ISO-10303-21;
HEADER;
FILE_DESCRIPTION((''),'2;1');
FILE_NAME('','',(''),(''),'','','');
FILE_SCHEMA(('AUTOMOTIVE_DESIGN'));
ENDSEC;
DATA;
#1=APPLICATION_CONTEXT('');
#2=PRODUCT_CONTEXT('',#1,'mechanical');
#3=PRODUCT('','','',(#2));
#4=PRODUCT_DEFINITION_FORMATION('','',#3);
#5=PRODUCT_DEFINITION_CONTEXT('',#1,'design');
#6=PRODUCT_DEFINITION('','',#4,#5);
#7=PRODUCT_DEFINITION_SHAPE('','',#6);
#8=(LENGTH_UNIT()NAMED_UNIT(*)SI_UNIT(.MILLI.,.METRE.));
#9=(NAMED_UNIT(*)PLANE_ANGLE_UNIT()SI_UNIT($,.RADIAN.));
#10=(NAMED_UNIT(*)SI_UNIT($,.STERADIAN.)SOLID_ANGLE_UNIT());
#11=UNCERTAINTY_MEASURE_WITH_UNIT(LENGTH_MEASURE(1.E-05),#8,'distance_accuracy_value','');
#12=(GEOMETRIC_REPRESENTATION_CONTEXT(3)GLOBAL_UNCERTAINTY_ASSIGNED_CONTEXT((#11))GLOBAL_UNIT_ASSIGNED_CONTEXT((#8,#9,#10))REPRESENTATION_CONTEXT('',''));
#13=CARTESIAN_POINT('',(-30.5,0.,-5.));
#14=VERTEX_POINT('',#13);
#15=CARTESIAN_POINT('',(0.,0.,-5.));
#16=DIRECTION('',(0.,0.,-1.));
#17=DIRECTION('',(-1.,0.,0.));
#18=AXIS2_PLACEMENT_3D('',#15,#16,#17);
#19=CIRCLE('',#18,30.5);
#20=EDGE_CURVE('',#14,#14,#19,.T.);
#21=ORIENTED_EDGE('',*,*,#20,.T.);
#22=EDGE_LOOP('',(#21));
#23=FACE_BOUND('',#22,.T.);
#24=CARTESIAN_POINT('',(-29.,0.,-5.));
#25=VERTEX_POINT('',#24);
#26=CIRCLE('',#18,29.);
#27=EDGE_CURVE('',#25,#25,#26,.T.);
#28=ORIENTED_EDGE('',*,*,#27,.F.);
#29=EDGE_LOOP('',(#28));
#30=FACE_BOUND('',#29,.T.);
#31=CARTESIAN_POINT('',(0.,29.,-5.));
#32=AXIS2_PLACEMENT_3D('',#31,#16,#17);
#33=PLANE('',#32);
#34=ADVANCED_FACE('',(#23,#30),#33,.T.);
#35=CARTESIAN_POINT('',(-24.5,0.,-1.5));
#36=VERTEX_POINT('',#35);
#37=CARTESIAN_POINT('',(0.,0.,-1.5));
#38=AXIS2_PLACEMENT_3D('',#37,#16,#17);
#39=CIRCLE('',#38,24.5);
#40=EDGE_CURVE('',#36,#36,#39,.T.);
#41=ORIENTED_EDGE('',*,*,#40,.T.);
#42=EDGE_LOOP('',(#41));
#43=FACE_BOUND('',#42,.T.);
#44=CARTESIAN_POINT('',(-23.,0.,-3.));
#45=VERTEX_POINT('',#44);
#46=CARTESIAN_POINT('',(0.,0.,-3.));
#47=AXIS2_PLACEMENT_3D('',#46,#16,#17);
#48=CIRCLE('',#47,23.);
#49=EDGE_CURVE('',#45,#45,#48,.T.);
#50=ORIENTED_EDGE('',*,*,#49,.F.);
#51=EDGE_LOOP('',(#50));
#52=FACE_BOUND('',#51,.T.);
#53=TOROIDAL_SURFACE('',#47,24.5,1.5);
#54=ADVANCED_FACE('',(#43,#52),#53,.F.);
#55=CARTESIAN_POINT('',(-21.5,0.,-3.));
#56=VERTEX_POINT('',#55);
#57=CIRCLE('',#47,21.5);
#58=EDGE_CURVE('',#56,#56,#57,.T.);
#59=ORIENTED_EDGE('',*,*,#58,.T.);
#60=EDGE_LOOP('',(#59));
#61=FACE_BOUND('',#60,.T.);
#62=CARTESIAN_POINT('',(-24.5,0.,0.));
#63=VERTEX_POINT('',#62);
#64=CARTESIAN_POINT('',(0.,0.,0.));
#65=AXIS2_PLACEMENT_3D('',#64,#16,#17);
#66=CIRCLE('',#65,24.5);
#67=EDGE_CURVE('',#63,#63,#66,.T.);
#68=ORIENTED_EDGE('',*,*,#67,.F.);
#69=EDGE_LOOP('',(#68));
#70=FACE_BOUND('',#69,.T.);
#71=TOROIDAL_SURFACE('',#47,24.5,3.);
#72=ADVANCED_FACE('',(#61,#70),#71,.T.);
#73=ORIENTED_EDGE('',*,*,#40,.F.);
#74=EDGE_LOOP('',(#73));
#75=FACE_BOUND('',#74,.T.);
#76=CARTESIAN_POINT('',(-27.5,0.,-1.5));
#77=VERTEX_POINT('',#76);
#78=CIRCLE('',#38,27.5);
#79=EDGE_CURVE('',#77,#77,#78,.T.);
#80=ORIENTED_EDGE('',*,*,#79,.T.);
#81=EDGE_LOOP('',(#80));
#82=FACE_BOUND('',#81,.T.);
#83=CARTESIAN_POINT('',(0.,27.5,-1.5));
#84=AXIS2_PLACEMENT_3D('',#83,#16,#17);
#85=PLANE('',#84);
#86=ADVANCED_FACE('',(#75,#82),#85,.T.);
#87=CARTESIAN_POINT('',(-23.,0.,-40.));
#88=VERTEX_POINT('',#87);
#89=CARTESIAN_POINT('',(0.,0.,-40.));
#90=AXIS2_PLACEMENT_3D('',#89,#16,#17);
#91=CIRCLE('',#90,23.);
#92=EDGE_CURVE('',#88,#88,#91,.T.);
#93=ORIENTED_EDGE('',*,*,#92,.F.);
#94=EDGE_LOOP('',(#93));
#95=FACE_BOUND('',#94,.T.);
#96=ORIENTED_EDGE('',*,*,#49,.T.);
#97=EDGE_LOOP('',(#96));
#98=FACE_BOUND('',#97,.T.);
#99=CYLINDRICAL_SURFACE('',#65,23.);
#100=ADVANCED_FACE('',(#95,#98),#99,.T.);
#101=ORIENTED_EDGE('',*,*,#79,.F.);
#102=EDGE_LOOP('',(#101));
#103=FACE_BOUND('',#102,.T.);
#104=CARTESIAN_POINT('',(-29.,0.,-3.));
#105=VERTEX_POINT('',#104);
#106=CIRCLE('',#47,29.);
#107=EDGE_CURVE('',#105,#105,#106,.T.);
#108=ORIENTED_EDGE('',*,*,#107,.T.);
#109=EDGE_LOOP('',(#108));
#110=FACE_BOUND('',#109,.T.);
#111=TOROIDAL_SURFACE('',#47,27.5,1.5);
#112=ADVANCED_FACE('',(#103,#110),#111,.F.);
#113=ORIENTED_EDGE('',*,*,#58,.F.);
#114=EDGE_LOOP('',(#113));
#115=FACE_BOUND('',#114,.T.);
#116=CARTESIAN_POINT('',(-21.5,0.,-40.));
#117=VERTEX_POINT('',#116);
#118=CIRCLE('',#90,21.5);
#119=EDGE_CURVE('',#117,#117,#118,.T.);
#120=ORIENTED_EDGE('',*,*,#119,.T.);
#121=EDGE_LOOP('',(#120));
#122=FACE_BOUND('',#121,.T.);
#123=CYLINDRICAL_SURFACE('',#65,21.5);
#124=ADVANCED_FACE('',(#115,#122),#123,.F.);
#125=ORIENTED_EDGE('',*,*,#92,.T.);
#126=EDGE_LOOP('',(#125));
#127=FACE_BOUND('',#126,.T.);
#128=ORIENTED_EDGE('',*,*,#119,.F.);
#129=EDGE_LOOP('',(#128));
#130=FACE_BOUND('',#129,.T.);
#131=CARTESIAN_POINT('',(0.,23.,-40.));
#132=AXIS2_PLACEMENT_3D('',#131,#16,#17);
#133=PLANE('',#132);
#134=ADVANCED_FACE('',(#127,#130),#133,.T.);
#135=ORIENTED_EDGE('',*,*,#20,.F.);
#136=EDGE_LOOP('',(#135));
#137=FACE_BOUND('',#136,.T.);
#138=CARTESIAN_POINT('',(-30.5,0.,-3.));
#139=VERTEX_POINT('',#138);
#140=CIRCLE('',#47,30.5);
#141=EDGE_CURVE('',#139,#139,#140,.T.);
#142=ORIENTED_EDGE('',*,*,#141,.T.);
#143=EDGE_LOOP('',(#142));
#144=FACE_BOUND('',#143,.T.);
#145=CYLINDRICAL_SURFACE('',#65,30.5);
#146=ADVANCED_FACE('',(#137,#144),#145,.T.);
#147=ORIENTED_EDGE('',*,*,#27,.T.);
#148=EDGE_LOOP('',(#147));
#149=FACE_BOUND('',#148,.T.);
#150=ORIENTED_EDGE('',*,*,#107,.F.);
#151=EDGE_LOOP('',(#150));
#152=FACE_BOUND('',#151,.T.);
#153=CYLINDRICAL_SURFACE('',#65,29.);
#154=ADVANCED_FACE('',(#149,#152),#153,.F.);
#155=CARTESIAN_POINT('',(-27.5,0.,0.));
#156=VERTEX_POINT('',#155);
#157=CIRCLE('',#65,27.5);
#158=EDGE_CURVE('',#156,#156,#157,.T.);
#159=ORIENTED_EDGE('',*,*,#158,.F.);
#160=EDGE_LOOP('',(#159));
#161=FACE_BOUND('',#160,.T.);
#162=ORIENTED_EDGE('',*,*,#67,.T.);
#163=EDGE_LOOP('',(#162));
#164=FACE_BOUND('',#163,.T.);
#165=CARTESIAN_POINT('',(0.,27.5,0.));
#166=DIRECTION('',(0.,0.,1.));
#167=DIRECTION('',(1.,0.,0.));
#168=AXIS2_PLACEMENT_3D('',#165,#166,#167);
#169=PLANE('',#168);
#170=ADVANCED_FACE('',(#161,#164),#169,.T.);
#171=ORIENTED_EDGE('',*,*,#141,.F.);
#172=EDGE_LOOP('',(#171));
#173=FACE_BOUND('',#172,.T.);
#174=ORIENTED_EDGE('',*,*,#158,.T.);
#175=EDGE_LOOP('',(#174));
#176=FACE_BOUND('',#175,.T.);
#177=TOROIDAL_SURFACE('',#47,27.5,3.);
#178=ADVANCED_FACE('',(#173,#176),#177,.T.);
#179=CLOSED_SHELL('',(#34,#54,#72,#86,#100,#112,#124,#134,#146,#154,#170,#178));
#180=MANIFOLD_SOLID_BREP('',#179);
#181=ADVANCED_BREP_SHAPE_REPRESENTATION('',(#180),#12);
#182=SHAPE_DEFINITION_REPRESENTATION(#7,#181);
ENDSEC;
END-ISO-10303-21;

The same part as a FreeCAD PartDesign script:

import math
import FreeCAD as App
import Part
import Sketcher
Q = App.Units.Quantity

doc = App.newDocument("Part")
body = doc.addObject("PartDesign::Body", "Body")

# Sketch on YZ plane
sketch1 = doc.addObject("Sketcher::SketchObject", "Sketch")
body.addObject(sketch1)
sketch1.AttachmentSupport = (doc.YZ_Plane, [""])
sketch1.MapMode = "FlatFace"
sketch1.addGeometry([
    Part.LineSegment(App.Vector(30.5, -5, 0), App.Vector(30.5, -3, 0)),  # 0
    Part.ArcOfCircle(Part.Circle(App.Vector(27.5, -3, 0), App.Vector(0, 0, 1), 3), math.radians(0), math.radians(90)),  # 1
    Part.LineSegment(App.Vector(27.5, 0, 0), App.Vector(24.5, 0, 0)),  # 2
    Part.ArcOfCircle(Part.Circle(App.Vector(24.5, -3, 0), App.Vector(0, 0, 1), 3), math.radians(90), math.radians(180)),  # 3
    Part.LineSegment(App.Vector(21.5, -3, 0), App.Vector(21.5, -40, 0)),  # 4
    Part.LineSegment(App.Vector(21.5, -40, 0), App.Vector(23, -40, 0)),  # 5
    Part.LineSegment(App.Vector(23, -40, 0), App.Vector(23, -3, 0)),  # 6
    Part.ArcOfCircle(Part.Circle(App.Vector(24.5, -3, 0), App.Vector(0, 0, 1), 1.5), math.radians(90), math.radians(180)),  # 7
    Part.LineSegment(App.Vector(24.5, -1.5, 0), App.Vector(27.5, -1.5, 0)),  # 8
    Part.ArcOfCircle(Part.Circle(App.Vector(27.5, -3, 0), App.Vector(0, 0, 1), 1.5), math.radians(0), math.radians(90)),  # 9
    Part.LineSegment(App.Vector(29, -3, 0), App.Vector(29, -5, 0)),  # 10
    Part.LineSegment(App.Vector(29, -5, 0), App.Vector(30.5, -5, 0)),  # 11
], False)
sketch1.addConstraint([
    Sketcher.Constraint("Tangent", 0, 2, 1, 1),
    Sketcher.Constraint("Tangent", 1, 2, 2, 1),
    Sketcher.Constraint("Tangent", 2, 2, 3, 1),
    Sketcher.Constraint("Tangent", 3, 2, 4, 1),
    Sketcher.Constraint("Coincident", 4, 2, 5, 1),
    Sketcher.Constraint("Coincident", 5, 2, 6, 1),
    Sketcher.Constraint("Tangent", 6, 2, 7, 2),
    Sketcher.Constraint("Tangent", 7, 1, 8, 1),
    Sketcher.Constraint("Tangent", 8, 2, 9, 2),
    Sketcher.Constraint("Tangent", 9, 1, 10, 1),
    Sketcher.Constraint("Coincident", 10, 2, 11, 1),
    Sketcher.Constraint("Coincident", 11, 2, 0, 1),
    Sketcher.Constraint("Vertical", 0),
    Sketcher.Constraint("Horizontal", 2),
    Sketcher.Constraint("Vertical", 4),
    Sketcher.Constraint("Horizontal", 5),
    Sketcher.Constraint("Vertical", 6),
    Sketcher.Constraint("Horizontal", 8),
    Sketcher.Constraint("Vertical", 10),
    Sketcher.Constraint("Horizontal", 11),
    Sketcher.Constraint("Coincident", 7, 3, 3, 3),
    Sketcher.Constraint("Coincident", 9, 3, 1, 3),
    Sketcher.Constraint("Equal", 1, 3),
    Sketcher.Constraint("PointOnObject", 1, 2, -1),
    Sketcher.Constraint("Radius", 1, Q("3 mm")),
    Sketcher.Constraint("Radius", 7, Q("1.5 mm")),
    Sketcher.Constraint("DistanceX", 2, 2, 2, 1, Q("3 mm")),
    Sketcher.Constraint("DistanceY", 0, 1, 0, 2, Q("2 mm")),
    Sketcher.Constraint("DistanceY", 4, 2, 4, 1, Q("37 mm")),
    Sketcher.Constraint("DistanceX", -1, 1, 5, 2, Q("23 mm")),
])
revolution = doc.addObject("PartDesign::Revolution", "Revolution")
body.addObject(revolution)
revolution.Profile = sketch1
revolution.ReferenceAxis = (sketch1, ["V_Axis"])
revolution.Angle = 360

doc.recompute()
